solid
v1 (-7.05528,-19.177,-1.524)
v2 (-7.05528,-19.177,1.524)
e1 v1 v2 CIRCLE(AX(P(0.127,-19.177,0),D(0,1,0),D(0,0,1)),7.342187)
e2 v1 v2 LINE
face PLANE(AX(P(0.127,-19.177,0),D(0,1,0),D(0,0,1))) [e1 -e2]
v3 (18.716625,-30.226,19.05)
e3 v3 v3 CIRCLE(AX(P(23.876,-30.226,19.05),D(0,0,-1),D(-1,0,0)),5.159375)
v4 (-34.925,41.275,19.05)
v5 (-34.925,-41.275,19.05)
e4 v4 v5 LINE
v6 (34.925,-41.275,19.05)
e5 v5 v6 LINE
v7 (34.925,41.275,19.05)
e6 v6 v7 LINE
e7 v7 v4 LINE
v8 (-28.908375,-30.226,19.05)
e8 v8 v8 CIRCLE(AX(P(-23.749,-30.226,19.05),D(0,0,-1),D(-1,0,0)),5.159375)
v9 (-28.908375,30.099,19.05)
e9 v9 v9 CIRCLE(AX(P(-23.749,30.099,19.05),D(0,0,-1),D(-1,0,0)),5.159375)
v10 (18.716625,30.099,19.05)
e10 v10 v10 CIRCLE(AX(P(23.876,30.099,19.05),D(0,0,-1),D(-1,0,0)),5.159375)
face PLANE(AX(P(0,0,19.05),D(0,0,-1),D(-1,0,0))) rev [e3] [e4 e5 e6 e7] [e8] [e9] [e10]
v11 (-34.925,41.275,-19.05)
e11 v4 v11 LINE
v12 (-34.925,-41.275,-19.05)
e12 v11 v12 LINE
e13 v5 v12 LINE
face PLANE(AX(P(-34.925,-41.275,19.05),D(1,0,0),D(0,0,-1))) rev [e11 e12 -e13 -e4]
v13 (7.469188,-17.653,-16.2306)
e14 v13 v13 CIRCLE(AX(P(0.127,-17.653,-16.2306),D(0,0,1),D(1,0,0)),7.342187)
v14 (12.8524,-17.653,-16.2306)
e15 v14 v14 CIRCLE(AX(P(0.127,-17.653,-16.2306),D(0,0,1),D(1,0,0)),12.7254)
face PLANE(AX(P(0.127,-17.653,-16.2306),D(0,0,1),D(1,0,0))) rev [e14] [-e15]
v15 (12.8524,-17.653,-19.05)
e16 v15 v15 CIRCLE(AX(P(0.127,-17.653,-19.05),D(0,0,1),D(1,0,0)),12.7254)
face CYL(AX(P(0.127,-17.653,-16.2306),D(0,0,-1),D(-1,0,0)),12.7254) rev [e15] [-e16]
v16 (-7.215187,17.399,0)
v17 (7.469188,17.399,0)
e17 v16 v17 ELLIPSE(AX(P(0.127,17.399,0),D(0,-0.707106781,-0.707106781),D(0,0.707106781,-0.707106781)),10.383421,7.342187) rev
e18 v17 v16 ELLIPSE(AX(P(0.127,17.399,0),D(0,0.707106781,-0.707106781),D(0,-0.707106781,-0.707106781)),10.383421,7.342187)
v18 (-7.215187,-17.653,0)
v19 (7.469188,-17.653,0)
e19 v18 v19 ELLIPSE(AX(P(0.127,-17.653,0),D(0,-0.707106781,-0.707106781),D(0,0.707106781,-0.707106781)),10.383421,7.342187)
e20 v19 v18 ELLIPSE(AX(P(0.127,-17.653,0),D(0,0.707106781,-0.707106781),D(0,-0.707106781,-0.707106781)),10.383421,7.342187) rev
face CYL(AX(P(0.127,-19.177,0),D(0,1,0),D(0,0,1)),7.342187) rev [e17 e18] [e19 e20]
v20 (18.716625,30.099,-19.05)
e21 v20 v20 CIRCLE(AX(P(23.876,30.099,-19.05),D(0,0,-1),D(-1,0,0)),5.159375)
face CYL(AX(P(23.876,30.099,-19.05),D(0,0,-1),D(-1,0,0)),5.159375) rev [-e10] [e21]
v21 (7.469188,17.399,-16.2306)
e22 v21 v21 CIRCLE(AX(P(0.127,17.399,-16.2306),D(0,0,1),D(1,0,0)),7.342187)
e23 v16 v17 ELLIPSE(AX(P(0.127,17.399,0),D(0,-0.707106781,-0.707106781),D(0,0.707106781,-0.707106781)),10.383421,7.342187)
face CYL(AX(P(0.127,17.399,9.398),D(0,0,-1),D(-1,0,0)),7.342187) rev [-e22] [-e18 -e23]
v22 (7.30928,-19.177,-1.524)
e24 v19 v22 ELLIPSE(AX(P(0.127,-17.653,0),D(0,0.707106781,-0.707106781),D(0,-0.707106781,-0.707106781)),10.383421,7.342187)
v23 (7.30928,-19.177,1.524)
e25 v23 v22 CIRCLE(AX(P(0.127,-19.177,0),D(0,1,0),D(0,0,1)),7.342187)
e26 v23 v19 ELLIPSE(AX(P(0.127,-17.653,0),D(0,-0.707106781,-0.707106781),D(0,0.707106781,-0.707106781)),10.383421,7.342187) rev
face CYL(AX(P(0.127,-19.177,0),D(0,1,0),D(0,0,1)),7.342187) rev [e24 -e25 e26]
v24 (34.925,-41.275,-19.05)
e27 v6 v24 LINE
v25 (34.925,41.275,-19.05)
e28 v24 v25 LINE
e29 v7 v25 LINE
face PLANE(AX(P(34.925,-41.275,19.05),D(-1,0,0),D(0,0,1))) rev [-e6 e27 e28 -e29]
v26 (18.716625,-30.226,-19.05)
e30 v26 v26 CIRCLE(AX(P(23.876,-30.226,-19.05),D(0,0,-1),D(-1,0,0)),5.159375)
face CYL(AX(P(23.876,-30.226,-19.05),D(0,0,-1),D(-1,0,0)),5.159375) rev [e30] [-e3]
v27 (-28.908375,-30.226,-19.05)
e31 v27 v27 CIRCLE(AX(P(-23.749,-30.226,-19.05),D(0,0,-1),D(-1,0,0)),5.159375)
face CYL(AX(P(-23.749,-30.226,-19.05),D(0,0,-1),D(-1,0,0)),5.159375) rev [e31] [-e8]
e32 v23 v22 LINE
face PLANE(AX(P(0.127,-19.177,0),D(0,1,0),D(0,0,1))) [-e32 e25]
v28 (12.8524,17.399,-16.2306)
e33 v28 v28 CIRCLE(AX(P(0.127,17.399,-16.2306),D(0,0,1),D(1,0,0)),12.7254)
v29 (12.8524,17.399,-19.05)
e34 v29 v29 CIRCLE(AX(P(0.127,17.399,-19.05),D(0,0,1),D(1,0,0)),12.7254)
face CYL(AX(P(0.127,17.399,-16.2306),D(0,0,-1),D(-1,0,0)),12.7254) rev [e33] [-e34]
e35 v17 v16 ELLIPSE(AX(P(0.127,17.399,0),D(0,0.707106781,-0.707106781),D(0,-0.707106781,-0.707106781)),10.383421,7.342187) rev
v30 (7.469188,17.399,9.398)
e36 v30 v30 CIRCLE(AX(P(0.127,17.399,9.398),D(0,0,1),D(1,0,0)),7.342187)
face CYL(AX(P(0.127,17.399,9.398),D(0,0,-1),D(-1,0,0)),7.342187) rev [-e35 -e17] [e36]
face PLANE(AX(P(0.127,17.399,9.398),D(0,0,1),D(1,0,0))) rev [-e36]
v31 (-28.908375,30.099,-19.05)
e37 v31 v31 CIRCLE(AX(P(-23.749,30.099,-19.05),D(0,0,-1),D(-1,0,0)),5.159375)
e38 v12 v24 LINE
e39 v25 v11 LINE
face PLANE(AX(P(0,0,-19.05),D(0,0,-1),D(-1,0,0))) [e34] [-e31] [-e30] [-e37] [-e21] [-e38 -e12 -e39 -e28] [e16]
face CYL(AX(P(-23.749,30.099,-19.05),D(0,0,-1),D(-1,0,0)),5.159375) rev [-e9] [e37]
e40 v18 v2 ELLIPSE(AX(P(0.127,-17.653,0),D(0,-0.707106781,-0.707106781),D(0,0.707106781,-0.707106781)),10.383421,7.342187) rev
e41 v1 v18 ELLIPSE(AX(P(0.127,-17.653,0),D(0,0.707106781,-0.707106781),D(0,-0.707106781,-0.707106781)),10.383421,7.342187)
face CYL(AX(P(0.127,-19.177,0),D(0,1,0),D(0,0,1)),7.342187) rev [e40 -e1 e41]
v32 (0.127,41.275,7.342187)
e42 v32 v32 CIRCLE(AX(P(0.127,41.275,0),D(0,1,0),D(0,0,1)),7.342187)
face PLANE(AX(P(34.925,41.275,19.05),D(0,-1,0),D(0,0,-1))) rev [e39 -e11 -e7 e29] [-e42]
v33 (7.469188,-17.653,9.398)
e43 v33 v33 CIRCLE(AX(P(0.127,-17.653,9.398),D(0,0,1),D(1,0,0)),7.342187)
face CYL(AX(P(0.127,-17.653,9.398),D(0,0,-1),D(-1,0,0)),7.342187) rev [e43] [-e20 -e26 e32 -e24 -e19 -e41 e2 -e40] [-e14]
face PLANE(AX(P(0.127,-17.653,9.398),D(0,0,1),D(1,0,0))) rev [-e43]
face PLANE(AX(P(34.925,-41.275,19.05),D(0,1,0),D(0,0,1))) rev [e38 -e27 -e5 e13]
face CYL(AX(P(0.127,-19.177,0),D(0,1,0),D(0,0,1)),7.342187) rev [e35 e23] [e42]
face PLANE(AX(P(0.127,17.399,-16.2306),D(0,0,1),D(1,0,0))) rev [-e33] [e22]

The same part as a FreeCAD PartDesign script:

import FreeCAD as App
import Part
import Sketcher

V = App.Vector
Q = App.Units.Quantity


def add_polygon(sketch, points):
    """Adds a closed chain of lines whose ends are joined by coincident constraints."""
    first, n = sketch.GeometryCount, len(points)
    for a, b in zip(points, points[1:] + points[:1]):
        sketch.addGeometry(Part.LineSegment(App.Vector(*a, 0), App.Vector(*b, 0)), False)
    for i in range(n):
        sketch.addConstraint(Sketcher.Constraint("Coincident", first + i, 2, first + (i + 1) % n, 1))

doc = App.newDocument("Part")
body = doc.addObject("PartDesign::Body", "Body")

sketch1 = body.newObject("Sketcher::SketchObject", "Sketch")
sketch1.AttachmentSupport = (doc.getObject("XY_Plane"), [""])
sketch1.MapMode = "FlatFace"
add_polygon(sketch1, [(-35, -41), (35, -41), (35, 41), (-35, 41)])
sketch1.addConstraint(Sketcher.Constraint("Horizontal", 0))
sketch1.addConstraint(Sketcher.Constraint("Vertical", 1))
sketch1.addConstraint(Sketcher.Constraint("Horizontal", 2))
sketch1.addConstraint(Sketcher.Constraint("Vertical", 3))
sketch1.addConstraint(Sketcher.Constraint("Symmetric", 0, 2, 2, 2, -1, 1))
sketch1.addConstraint(Sketcher.Constraint("DistanceX", 0, 1, 0, 2, Q("2.75 in")))
sketch1.addConstraint(Sketcher.Constraint("DistanceY", 1, 1, 1, 2, Q("3.25 in")))
pad1 = body.newObject("PartDesign::Pad", "Pad")
pad1.Profile = sketch1
pad1.Length = Q("1.5 in")
pad1.Midplane = True

sketch2 = body.newObject("Sketcher::SketchObject", "Sketch001")
sketch2.AttachmentSupport = (doc.getObject("XY_Plane"), [""])
sketch2.MapMode = "FlatFace"
sketch2.AttachmentOffset = App.Placement(V(0, 0, -0.75 * 25.4), App.Rotation())
sketch2.addGeometry(Part.Circle(V(24, -30, 0), V(0, 0, 1), 5), False)
sketch2.addConstraint(Sketcher.Constraint("Diameter", 0, Q("0.40625 in")))
sketch2.addConstraint(Sketcher.Constraint("DistanceX", -1, 1, 0, 3, Q("0.94 in")))
sketch2.addConstraint(Sketcher.Constraint("DistanceY", 0, 3, -1, 1, Q("1.19 in")))
doc.recompute()
hole = body.newObject("PartDesign::Hole", "Hole")
hole.Profile = sketch2
hole.ThreadType = "None"
hole.Diameter = Q("0.40625 in")
hole.DepthType = "Dimension"
hole.Depth = Q("1.5 in")
hole.DrillPoint = "Angled"
hole.DrillPointAngle = 118
hole.Reversed = True

sketch3 = body.newObject("Sketcher::SketchObject", "Sketch002")
sketch3.AttachmentSupport = (doc.getObject("XY_Plane"), [""])
sketch3.MapMode = "FlatFace"
sketch3.AttachmentOffset = App.Placement(V(0, 0, -0.75 * 25.4), App.Rotation())
sketch3.addGeometry(Part.Circle(V(24, 30, 0), V(0, 0, 1), 5), False)
sketch3.addGeometry(Part.Circle(V(-24, -30, 0), V(0, 0, 1), 5), False)
sketch3.addGeometry(Part.Circle(V(-24, 30, 0), V(0, 0, 1), 5), False)
sketch3.addConstraint(Sketcher.Constraint("Equal", 0, 1))
sketch3.addConstraint(Sketcher.Constraint("Equal", 1, 2))
sketch3.addConstraint(Sketcher.Constraint("Horizontal", 0, 3, 2, 3))
sketch3.addConstraint(Sketcher.Constraint("Vertical", 1, 3, 2, 3))
sketch3.addConstraint(Sketcher.Constraint("Diameter", 0, Q("0.40625 in")))
sketch3.addConstraint(Sketcher.Constraint("DistanceX", -1, 1, 0, 3, Q("0.94 in")))
sketch3.addConstraint(Sketcher.Constraint("DistanceY", 1, 3, -1, 1, Q("1.19 in")))
sketch3.addConstraint(Sketcher.Constraint("DistanceY", -1, 1, 0, 3, Q("1.185 in")))
sketch3.addConstraint(Sketcher.Constraint("DistanceX", 1, 3, -1, 1, Q("0.935 in")))
doc.recompute()
hole2 = body.newObject("PartDesign::Hole", "Hole001")
hole2.Profile = sketch3
hole2.ThreadType = "None"
hole2.Diameter = Q("0.40625 in")
hole2.DepthType = "Dimension"
hole2.Depth = Q("1.5 in")
hole2.DrillPoint = "Angled"
hole2.DrillPointAngle = 118
hole2.Reversed = True

sketch4 = body.newObject("Sketcher::SketchObject", "Sketch003")
sketch4.AttachmentSupport = (doc.getObject("XY_Plane"), [""])
sketch4.MapMode = "FlatFace"
sketch4.AttachmentOffset = App.Placement(V(0, 0, -0.75 * 25.4), App.Rotation())
sketch4.addGeometry(Part.Circle(V(0, -18, 0), V(0, 0, 1), 7), False)
sketch4.addConstraint(Sketcher.Constraint("Diameter", 0, Q("0.578125 in")))
sketch4.addConstraint(Sketcher.Constraint("DistanceX", -1, 1, 0, 3, Q("0.005 in")))
sketch4.addConstraint(Sketcher.Constraint("DistanceY", 0, 3, -1, 1, Q("0.695 in")))
pocket1 = body.newObject("PartDesign::Pocket", "Pocket")
pocket1.Profile = sketch4
pocket1.Length = Q("1.12 in")
pocket1.Reversed = True

sketch5 = body.newObject("Sketcher::SketchObject", "Sketch004")
sketch5.AttachmentSupport = (doc.getObject("XY_Plane"), [""])
sketch5.MapMode = "FlatFace"
sketch5.AttachmentOffset = App.Placement(V(0, 0, -0.75 * 25.4), App.Rotation())
sketch5.addGeometry(Part.Circle(V(0, -18, 0), V(0, 0, 1), 13), False)
sketch5.addConstraint(Sketcher.Constraint("Diameter", 0, Q("1.002 in")))
sketch5.addConstraint(Sketcher.Constraint("DistanceX", -1, 1, 0, 3, Q("0.005 in")))
sketch5.addConstraint(Sketcher.Constraint("DistanceY", 0, 3, -1, 1, Q("0.695 in")))
pocket2 = body.newObject("PartDesign::Pocket", "Pocket001")
pocket2.Profile = sketch5
pocket2.Length = Q("0.111 in")
pocket2.Reversed = True

sketch6 = body.newObject("Sketcher::SketchObject", "Sketch005")
sketch6.AttachmentSupport = (doc.getObject("XY_Plane"), [""])
sketch6.MapMode = "FlatFace"
sketch6.AttachmentOffset = App.Placement(V(0, 0, -0.75 * 25.4), App.Rotation())
sketch6.addGeometry(Part.Circle(V(0, 17, 0), V(0, 0, 1), 7), False)
sketch6.addConstraint(Sketcher.Constraint("Diameter", 0, Q("0.578125 in")))
sketch6.addConstraint(Sketcher.Constraint("DistanceX", -1, 1, 0, 3, Q("0.005 in")))
sketch6.addConstraint(Sketcher.Constraint("DistanceY", -1, 1, 0, 3, Q("0.685 in")))
pocket3 = body.newObject("PartDesign::Pocket", "Pocket002")
pocket3.Profile = sketch6
pocket3.Length = Q("1.12 in")
pocket3.Reversed = True

sketch7 = body.newObject("Sketcher::SketchObject", "Sketch006")
sketch7.AttachmentSupport = (doc.getObject("XY_Plane"), [""])
sketch7.MapMode = "FlatFace"
sketch7.AttachmentOffset = App.Placement(V(0, 0, -0.75 * 25.4), App.Rotation())
sketch7.addGeometry(Part.Circle(V(0, 17, 0), V(0, 0, 1), 13), False)
sketch7.addConstraint(Sketcher.Constraint("Diameter", 0, Q("1.002 in")))
sketch7.addConstraint(Sketcher.Constraint("DistanceX", -1, 1, 0, 3, Q("0.005 in")))
sketch7.addConstraint(Sketcher.Constraint("DistanceY", -1, 1, 0, 3, Q("0.685 in")))
pocket4 = body.newObject("PartDesign::Pocket", "Pocket003")
pocket4.Profile = sketch7
pocket4.Length = Q("0.111 in")
pocket4.Reversed = True

sketch8 = body.newObject("Sketcher::SketchObject", "Sketch007")
sketch8.AttachmentSupport = (doc.getObject("XZ_Plane"), [""])
sketch8.MapMode = "FlatFace"
sketch8.AttachmentOffset = App.Placement(V(0, 0, -1.625 * 25.4), App.Rotation())
sketch8.addGeometry(Part.Circle(V(0, 0, 0), V(0, 0, 1), 7), False)
sketch8.addConstraint(Sketcher.Constraint("PointOnObject", 0, 3, -1))
sketch8.addConstraint(Sketcher.Constraint("Diameter", 0, Q("0.578125 in")))
sketch8.addConstraint(Sketcher.Constraint("DistanceX", -1, 1, 0, 3, Q("0.005 in")))
pocket5 = body.newObject("PartDesign::Pocket", "Pocket004")
pocket5.Profile = sketch8
pocket5.Length = Q("2.38 in")
pocket5.Reversed = True

doc.recompute()
